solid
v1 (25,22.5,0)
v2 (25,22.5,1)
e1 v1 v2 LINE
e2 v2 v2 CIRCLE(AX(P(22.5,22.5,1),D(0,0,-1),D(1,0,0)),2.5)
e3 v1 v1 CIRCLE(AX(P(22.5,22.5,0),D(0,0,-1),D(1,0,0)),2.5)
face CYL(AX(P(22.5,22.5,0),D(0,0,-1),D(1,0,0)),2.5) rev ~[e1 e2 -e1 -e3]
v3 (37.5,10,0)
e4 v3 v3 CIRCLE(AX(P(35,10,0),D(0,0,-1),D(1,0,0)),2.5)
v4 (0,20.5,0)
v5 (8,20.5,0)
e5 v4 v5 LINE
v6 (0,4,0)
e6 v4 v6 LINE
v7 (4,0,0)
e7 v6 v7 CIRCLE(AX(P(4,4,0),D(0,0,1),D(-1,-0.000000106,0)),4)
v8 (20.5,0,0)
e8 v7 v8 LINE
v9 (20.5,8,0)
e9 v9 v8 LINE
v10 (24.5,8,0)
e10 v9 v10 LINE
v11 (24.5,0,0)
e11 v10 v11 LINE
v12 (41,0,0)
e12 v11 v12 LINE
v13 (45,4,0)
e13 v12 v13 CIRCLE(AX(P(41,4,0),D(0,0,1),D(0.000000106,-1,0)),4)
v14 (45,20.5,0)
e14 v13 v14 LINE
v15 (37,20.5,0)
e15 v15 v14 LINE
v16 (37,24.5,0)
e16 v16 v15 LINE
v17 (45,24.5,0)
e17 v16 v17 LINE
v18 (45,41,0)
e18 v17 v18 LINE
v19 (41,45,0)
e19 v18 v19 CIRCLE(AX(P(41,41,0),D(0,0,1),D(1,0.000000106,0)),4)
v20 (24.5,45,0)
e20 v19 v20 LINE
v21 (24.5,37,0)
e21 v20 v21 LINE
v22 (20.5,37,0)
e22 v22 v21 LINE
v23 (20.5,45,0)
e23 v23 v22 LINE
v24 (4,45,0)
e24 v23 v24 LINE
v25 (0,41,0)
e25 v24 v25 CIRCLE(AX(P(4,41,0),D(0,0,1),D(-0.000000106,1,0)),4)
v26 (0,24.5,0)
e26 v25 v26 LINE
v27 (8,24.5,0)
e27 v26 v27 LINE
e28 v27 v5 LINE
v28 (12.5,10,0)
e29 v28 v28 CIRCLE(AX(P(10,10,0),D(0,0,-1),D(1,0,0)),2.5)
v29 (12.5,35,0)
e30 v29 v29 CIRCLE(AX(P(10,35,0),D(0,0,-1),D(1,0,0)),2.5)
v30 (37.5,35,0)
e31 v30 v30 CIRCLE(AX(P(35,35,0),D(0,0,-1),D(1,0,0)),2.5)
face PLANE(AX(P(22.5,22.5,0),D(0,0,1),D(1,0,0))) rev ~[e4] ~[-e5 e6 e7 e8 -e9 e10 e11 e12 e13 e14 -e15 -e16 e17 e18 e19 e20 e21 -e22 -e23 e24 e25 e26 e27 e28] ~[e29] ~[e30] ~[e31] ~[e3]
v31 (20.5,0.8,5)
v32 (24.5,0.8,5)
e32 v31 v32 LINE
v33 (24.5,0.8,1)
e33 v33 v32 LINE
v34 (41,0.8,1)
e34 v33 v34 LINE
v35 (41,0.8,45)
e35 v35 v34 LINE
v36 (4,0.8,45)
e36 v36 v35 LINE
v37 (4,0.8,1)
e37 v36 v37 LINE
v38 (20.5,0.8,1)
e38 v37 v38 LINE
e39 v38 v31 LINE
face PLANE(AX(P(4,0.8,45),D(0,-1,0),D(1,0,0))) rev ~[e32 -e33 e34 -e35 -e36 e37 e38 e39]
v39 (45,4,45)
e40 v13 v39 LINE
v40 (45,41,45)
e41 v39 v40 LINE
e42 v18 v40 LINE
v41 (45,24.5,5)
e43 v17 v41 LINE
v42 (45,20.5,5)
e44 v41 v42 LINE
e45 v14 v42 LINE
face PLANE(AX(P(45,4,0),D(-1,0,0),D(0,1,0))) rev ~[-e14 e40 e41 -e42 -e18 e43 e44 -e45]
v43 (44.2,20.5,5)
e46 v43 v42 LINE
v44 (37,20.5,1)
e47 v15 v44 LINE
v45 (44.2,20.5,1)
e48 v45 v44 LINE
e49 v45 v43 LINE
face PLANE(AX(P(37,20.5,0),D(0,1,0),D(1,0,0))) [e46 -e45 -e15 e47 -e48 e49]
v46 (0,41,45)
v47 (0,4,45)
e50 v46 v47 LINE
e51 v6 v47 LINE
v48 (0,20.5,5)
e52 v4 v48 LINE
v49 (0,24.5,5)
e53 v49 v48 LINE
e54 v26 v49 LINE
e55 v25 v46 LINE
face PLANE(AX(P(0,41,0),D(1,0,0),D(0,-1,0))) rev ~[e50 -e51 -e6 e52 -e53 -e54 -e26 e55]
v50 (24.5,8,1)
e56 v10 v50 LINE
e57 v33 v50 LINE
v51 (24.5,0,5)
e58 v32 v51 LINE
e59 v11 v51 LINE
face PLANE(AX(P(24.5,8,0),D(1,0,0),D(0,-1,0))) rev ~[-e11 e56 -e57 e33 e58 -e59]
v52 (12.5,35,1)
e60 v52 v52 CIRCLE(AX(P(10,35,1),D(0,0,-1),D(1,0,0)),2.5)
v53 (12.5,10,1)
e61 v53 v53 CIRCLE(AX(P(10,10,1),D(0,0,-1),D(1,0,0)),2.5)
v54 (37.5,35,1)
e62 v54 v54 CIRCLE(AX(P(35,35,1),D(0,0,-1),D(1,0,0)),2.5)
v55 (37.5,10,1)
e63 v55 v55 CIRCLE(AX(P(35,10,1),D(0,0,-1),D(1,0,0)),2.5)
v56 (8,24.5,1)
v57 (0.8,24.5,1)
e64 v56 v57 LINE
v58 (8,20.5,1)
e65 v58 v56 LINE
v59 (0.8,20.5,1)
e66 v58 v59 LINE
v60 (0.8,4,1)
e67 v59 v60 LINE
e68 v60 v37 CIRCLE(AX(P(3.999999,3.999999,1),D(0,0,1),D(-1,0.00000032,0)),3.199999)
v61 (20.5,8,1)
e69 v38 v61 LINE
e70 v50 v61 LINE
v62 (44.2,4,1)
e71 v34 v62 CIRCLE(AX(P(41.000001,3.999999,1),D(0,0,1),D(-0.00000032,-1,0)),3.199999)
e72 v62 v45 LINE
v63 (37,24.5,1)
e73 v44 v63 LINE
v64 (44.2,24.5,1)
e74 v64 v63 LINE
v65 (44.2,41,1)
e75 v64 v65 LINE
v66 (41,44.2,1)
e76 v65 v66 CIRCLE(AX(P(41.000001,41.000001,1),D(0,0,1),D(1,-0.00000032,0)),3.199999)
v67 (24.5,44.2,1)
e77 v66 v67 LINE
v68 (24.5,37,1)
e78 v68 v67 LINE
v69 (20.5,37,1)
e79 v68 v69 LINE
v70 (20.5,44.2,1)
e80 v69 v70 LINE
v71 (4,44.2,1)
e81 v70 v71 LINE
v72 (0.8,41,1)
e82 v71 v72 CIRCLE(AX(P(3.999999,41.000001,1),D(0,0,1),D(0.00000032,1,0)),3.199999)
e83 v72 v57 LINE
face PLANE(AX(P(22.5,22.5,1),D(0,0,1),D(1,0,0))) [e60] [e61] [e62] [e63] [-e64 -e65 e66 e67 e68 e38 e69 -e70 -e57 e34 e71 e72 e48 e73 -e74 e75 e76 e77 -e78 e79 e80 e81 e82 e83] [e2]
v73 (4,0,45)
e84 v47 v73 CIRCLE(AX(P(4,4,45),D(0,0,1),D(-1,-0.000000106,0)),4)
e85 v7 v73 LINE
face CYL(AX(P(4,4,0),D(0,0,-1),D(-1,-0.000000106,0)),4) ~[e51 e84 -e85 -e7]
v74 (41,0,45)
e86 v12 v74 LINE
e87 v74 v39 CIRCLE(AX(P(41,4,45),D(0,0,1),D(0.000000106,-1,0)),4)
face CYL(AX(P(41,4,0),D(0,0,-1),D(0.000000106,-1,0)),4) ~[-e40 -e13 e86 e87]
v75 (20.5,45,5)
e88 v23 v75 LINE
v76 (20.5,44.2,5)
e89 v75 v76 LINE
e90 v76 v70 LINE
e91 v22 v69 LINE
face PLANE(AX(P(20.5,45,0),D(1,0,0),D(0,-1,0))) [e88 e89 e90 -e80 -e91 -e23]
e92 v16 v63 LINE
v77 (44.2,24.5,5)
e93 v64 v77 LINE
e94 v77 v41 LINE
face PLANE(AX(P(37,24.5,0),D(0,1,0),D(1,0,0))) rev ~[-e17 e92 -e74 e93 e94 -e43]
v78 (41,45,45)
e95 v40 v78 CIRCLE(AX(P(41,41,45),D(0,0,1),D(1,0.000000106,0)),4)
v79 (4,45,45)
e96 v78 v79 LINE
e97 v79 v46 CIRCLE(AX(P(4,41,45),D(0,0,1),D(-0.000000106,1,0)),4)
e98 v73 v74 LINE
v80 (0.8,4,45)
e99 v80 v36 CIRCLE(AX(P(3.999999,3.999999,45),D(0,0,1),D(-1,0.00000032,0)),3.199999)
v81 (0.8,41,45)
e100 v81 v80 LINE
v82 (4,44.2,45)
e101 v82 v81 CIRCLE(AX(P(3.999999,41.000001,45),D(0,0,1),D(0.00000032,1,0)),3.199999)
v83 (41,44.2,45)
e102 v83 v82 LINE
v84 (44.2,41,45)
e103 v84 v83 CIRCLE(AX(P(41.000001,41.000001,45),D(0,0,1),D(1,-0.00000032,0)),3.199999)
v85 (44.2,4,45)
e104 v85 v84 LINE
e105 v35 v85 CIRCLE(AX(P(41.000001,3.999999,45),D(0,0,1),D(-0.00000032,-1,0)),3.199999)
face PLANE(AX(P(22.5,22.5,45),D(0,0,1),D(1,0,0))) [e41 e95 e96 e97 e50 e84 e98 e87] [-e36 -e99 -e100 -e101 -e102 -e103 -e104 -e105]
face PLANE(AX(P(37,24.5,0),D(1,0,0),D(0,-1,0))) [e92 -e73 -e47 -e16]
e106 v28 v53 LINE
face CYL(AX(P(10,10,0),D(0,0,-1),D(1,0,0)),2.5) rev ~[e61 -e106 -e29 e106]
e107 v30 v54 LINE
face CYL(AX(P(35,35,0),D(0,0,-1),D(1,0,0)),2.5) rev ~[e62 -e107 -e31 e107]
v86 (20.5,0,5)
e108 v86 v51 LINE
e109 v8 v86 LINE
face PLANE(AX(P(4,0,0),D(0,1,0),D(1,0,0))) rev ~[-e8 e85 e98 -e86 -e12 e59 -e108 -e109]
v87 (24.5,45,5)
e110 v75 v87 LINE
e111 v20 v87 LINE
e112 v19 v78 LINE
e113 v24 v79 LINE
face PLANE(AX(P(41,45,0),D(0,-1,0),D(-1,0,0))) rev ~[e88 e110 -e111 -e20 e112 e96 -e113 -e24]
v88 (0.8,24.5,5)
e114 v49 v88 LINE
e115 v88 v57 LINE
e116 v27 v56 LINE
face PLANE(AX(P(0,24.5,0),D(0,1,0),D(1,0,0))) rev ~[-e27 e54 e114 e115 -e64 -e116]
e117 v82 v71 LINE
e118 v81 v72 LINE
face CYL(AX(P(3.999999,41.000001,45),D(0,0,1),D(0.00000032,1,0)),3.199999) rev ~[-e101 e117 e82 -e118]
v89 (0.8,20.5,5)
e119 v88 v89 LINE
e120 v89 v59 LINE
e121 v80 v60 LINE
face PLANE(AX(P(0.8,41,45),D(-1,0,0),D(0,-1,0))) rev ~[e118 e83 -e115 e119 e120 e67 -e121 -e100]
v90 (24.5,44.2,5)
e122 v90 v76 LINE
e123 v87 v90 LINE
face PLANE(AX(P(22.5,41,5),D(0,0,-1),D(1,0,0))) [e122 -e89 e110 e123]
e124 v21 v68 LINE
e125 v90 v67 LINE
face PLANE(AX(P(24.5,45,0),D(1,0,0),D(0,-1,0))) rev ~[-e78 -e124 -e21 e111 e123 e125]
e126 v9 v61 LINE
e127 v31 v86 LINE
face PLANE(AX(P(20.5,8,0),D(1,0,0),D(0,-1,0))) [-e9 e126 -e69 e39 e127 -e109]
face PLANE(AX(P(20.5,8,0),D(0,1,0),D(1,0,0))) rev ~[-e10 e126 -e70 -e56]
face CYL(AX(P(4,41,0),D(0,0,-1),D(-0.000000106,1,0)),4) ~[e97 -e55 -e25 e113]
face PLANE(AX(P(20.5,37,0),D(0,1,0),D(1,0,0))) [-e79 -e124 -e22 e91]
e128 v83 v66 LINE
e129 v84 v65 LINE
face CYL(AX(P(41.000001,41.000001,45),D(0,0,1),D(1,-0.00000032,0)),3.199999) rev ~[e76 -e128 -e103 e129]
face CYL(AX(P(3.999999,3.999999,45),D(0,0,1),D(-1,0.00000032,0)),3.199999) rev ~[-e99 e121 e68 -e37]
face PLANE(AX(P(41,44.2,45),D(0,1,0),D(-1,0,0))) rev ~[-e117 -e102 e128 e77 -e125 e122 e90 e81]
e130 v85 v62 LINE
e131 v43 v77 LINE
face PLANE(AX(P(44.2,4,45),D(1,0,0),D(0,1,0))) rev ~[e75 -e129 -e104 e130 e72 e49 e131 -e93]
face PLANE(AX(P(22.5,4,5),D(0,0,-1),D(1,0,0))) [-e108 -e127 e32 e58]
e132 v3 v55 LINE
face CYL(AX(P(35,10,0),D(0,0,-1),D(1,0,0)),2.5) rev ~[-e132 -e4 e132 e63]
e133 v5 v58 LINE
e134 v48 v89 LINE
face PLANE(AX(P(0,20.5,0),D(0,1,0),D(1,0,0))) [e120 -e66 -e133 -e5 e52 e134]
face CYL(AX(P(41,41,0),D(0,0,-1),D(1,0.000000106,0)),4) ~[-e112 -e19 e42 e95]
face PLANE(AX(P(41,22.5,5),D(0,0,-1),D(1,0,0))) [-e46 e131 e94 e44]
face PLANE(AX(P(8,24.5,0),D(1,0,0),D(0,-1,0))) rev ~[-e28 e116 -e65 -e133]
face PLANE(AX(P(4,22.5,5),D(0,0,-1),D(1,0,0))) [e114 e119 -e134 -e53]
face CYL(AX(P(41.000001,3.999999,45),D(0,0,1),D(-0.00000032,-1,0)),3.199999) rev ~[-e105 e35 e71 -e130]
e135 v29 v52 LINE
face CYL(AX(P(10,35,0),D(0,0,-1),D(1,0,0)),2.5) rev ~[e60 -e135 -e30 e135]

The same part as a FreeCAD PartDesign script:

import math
import FreeCAD as App
import Part
import Sketcher
from FreeCAD import Vector

doc = App.newDocument("Part")
params = doc.addObject("Spreadsheet::Sheet", "Params")
for row, (alias, value) in enumerate([
    ("sketch1_radius", "4 mm"),
    ("sketch1_width", "37 mm"),
    ("pad1_length", "45 mm"),
    ("sketch2_radius", "3.199999 mm"),
    ("sketch2_width", "37 mm"),
    ("pocket1_length", "44 mm"),
    ("sketch3_diameter", "5 mm"),
    ("sketch3_width", "4 mm"),
    ("sketch3_width2", "8 mm"),
    ("pocket2_length", "5 mm"),
], start=1):
    params.set(f"A{row}", alias)
    params.set(f"B{row}", "=" + value)
    params.setAlias(f"B{row}", alias)

body = doc.addObject("PartDesign::Body", "Body")

# Sketch on XY plane
sketch1 = doc.addObject("Sketcher::SketchObject", "Sketch")
body.addObject(sketch1)
sketch1.AttachmentSupport = (doc.XY_Plane, [""])
sketch1.MapMode = "FlatFace"
sketch1.addGeometry([
    Part.LineSegment(Vector(4, 0, 0), Vector(41, 0, 0)),  # 0
    Part.ArcOfCircle(Part.Circle(Vector(41, 4, 0), Vector(0, 0, 1), 4), math.radians(-90), math.radians(0)),  # 1
    Part.LineSegment(Vector(45, 4, 0), Vector(45, 41, 0)),  # 2
    Part.ArcOfCircle(Part.Circle(Vector(41, 41, 0), Vector(0, 0, 1), 4), math.radians(0), math.radians(90)),  # 3
    Part.LineSegment(Vector(41, 45, 0), Vector(4, 45, 0)),  # 4
    Part.ArcOfCircle(Part.Circle(Vector(4, 41, 0), Vector(0, 0, 1), 4), math.radians(90), math.radians(180)),  # 5
    Part.LineSegment(Vector(0, 41, 0), Vector(0, 4, 0)),  # 6
    Part.ArcOfCircle(Part.Circle(Vector(4, 4, 0), Vector(0, 0, 1), 4), math.radians(-180), math.radians(-90)),  # 7
], False)
sketch1.addConstraint([
    Sketcher.Constraint("Tangent", 0, 2, 1, 1),
    Sketcher.Constraint("Tangent", 1, 2, 2, 1),
    Sketcher.Constraint("Tangent", 2, 2, 3, 1),
    Sketcher.Constraint("Tangent", 3, 2, 4, 1),
    Sketcher.Constraint("Tangent", 4, 2, 5, 1),
    Sketcher.Constraint("Tangent", 5, 2, 6, 1),
    Sketcher.Constraint("Tangent", 6, 2, 7, 1),
    Sketcher.Constraint("Tangent", 7, 2, 0, 1),
    Sketcher.Constraint("Horizontal", 0),
    Sketcher.Constraint("Vertical", 2),
    Sketcher.Constraint("Horizontal", 4),
    Sketcher.Constraint("Vertical", 6),
    Sketcher.Constraint("Equal", 1, 3),
    Sketcher.Constraint("Equal", 3, 5),
    Sketcher.Constraint("Equal", 5, 7),
    Sketcher.Constraint("PointOnObject", 0, 2, -1),
    Sketcher.Constraint("PointOnObject", 5, 2, -2),
    Sketcher.Constraint("Equal", 4, 2),
    Sketcher.Constraint("Radius", 1, 4.0),
    Sketcher.Constraint("DistanceX", 0, 1, 0, 2, 37.0),
])
sketch1.setExpression("Constraints[18]", "Params.sketch1_radius")
sketch1.setExpression("Constraints[19]", "Params.sketch1_width")
pad1 = doc.addObject("PartDesign::Pad", "Pad")
body.addObject(pad1)
pad1.Profile = sketch1
pad1.setExpression("Length", "Params.pad1_length")

# Sketch on XY plane
sketch2 = doc.addObject("Sketcher::SketchObject", "Sketch001")
body.addObject(sketch2)
sketch2.AttachmentSupport = (doc.XY_Plane, [""])
sketch2.MapMode = "FlatFace"
sketch2.AttachmentOffset = App.Placement(Vector(0, 0, 45), App.Rotation())
sketch2.addGeometry([
    Part.LineSegment(Vector(4, 0.8, 0), Vector(41, 0.8, 0)),  # 0
    Part.ArcOfCircle(Part.Circle(Vector(41, 4, 0), Vector(0, 0, 1), 3.2), math.radians(-90), math.radians(0)),  # 1
    Part.LineSegment(Vector(44.2, 4, 0), Vector(44.2, 41, 0)),  # 2
    Part.ArcOfCircle(Part.Circle(Vector(41, 41, 0), Vector(0, 0, 1), 3.2), math.radians(0), math.radians(90)),  # 3
    Part.LineSegment(Vector(41, 44.2, 0), Vector(4, 44.2, 0)),  # 4
    Part.ArcOfCircle(Part.Circle(Vector(4, 41, 0), Vector(0, 0, 1), 3.2), math.radians(90), math.radians(180)),  # 5
    Part.LineSegment(Vector(0.8, 41, 0), Vector(0.8, 4, 0)),  # 6
    Part.ArcOfCircle(Part.Circle(Vector(4, 4, 0), Vector(0, 0, 1), 3.2), math.radians(180), math.radians(270)),  # 7
], False)
sketch2.addConstraint([
    Sketcher.Constraint("Tangent", 0, 2, 1, 1),
    Sketcher.Constraint("Tangent", 1, 2, 2, 1),
    Sketcher.Constraint("Tangent", 2, 2, 3, 1),
    Sketcher.Constraint("Tangent", 3, 2, 4, 1),
    Sketcher.Constraint("Tangent", 4, 2, 5, 1),
    Sketcher.Constraint("Tangent", 5, 2, 6, 1),
    Sketcher.Constraint("Tangent", 6, 2, 7, 1),
    Sketcher.Constraint("Tangent", 7, 2, 0, 1),
    Sketcher.Constraint("Horizontal", 0),
    Sketcher.Constraint("Vertical", 2),
    Sketcher.Constraint("Horizontal", 4),
    Sketcher.Constraint("Vertical", 6),
    Sketcher.Constraint("Equal", 1, 3),
    Sketcher.Constraint("Equal", 3, 5),
    Sketcher.Constraint("Equal", 5, 7),
    Sketcher.Constraint("Equal", 4, 2),
    Sketcher.Constraint("Radius", 1, 3.199999),
    Sketcher.Constraint("DistanceX", 0, 1, 0, 2, 37.0),
    Sketcher.Constraint("DistanceX", -1, 1, 1, 3, 41.000001),
    Sketcher.Constraint("DistanceY", -1, 1, 1, 3, 3.999999),
])
sketch2.setExpression("Constraints[16]", "Params.sketch2_radius")
sketch2.setExpression("Constraints[17]", "Params.sketch2_width")
pocket1 = doc.addObject("PartDesign::Pocket", "Pocket")
body.addObject(pocket1)
pocket1.Profile = sketch2
pocket1.setExpression("Length", "Params.pocket1_length")

# Sketch on XY plane
sketch3 = doc.addObject("Sketcher::SketchObject", "Sketch002")
body.addObject(sketch3)
sketch3.AttachmentSupport = (doc.XY_Plane, [""])
sketch3.MapMode = "FlatFace"
sketch3.addGeometry([
    Part.Circle(Vector(10, 10, 0), Vector(0, 0, 1), 2.5),  # 0
    Part.Circle(Vector(22.5, 22.5, 0), Vector(0, 0, 1), 2.5),  # 1
    Part.Circle(Vector(35, 10, 0), Vector(0, 0, 1), 2.5),  # 2
    Part.Circle(Vector(35, 35, 0), Vector(0, 0, 1), 2.5),  # 3
    Part.Circle(Vector(10, 35, 0), Vector(0, 0, 1), 2.5),  # 4
    Part.LineSegment(Vector(20.5, 0, 0), Vector(20.5, 8, 0)),  # 5
    Part.LineSegment(Vector(20.5, 8, 0), Vector(24.5, 8, 0)),  # 6
    Part.LineSegment(Vector(24.5, 8, 0), Vector(24.5, 0, 0)),  # 7
    Part.LineSegment(Vector(24.5, 0, 0), Vector(20.5, 0, 0)),  # 8
    Part.LineSegment(Vector(0, 20.5, 0), Vector(0, 24.5, 0)),  # 9
    Part.LineSegment(Vector(0, 24.5, 0), Vector(8, 24.5, 0)),  # 10
    Part.LineSegment(Vector(8, 24.5, 0), Vector(8, 20.5, 0)),  # 11
    Part.LineSegment(Vector(8, 20.5, 0), Vector(0, 20.5, 0)),  # 12
    Part.LineSegment(Vector(37, 20.5, 0), Vector(37, 24.5, 0)),  # 13
    Part.LineSegment(Vector(37, 24.5, 0), Vector(45, 24.5, 0)),  # 14
    Part.LineSegment(Vector(45, 24.5, 0), Vector(45, 20.5, 0)),  # 15
    Part.LineSegment(Vector(45, 20.5, 0), Vector(37, 20.5, 0)),  # 16
    Part.LineSegment(Vector(20.5, 37, 0), Vector(20.5, 45, 0)),  # 17
    Part.LineSegment(Vector(20.5, 45, 0), Vector(24.5, 45, 0)),  # 18
    Part.LineSegment(Vector(24.5, 45, 0), Vector(24.5, 37, 0)),  # 19
    Part.LineSegment(Vector(24.5, 37, 0), Vector(20.5, 37, 0)),  # 20
], False)
sketch3.addConstraint([
    Sketcher.Constraint("Coincident", 5, 2, 6, 1),
    Sketcher.Constraint("Coincident", 6, 2, 7, 1),
    Sketcher.Constraint("Coincident", 7, 2, 8, 1),
    Sketcher.Constraint("Coincident", 8, 2, 5, 1),
    Sketcher.Constraint("Coincident", 9, 2, 10, 1),
    Sketcher.Constraint("Coincident", 10, 2, 11, 1),
    Sketcher.Constraint("Coincident", 11, 2, 12, 1),
    Sketcher.Constraint("Coincident", 12, 2, 9, 1),
    Sketcher.Constraint("Coincident", 13, 2, 14, 1),
    Sketcher.Constraint("Coincident", 14, 2, 15, 1),
    Sketcher.Constraint("Coincident", 15, 2, 16, 1),
    Sketcher.Constraint("Coincident", 16, 2, 13, 1),
    Sketcher.Constraint("Coincident", 17, 2, 18, 1),
    Sketcher.Constraint("Coincident", 18, 2, 19, 1),
    Sketcher.Constraint("Coincident", 19, 2, 20, 1),
    Sketcher.Constraint("Coincident", 20, 2, 17, 1),
    Sketcher.Constraint("Vertical", 5),
    Sketcher.Constraint("Horizontal", 6),
    Sketcher.Constraint("Vertical", 7),
    Sketcher.Constraint("Horizontal", 8),
    Sketcher.Constraint("Vertical", 9),
    Sketcher.Constraint("Horizontal", 10),
    Sketcher.Constraint("Vertical", 11),
    Sketcher.Constraint("Horizontal", 12),
    Sketcher.Constraint("Vertical", 13),
    Sketcher.Constraint("Horizontal", 14),
    Sketcher.Constraint("Vertical", 15),
    Sketcher.Constraint("Horizontal", 16),
    Sketcher.Constraint("Vertical", 17),
    Sketcher.Constraint("Horizontal", 18),
    Sketcher.Constraint("Vertical", 19),
    Sketcher.Constraint("Horizontal", 20),
    Sketcher.Constraint("Equal", 0, 1),
    Sketcher.Constraint("Equal", 1, 2),
    Sketcher.Constraint("Equal", 2, 3),
    Sketcher.Constraint("Equal", 3, 4),
    Sketcher.Constraint("PointOnObject", 7, 2, -1),
    Sketcher.Constraint("PointOnObject", 9, 2, -2),
    Sketcher.Constraint("Horizontal", 0, 3, 2, 3),
    Sketcher.Constraint("Horizontal", 3, 3, 4, 3),
    Sketcher.Constraint("Horizontal", 10, 2, 13, 2),
    Sketcher.Constraint("Horizontal", 12, 2, 15, 2),
    Sketcher.Constraint("Vertical", 2, 3, 3, 3),
    Sketcher.Constraint("Vertical", 0, 3, 4, 3),
    Sketcher.Constraint("Vertical", 8, 2, 17, 2),
    Sketcher.Constraint("Vertical", 7, 2, 18, 2),
    Sketcher.Constraint("Equal", 12, 14),
    Sketcher.Constraint("Equal", 16, 5),
    Sketcher.Constraint("Equal", 20, 9),
    Sketcher.Constraint("Equal", 7, 17),
    Sketcher.Constraint("Diameter", 0, 5.0),
    Sketcher.Constraint("DistanceX", 6, 1, 6, 2, 4.0),
    Sketcher.Constraint("DistanceX", 10, 1, 10, 2, 8.0),
    Sketcher.Constraint("DistanceX", -1, 1, 0, 3, 10.0),
    Sketcher.Constraint("DistanceY", -1, 1, 0, 3, 10.0),
    Sketcher.Constraint("DistanceX", -1, 1, 2, 3, 35.0),
    Sketcher.Constraint("DistanceY", -1, 1, 3, 3, 35.0),
    Sketcher.Constraint("DistanceX", -1, 1, 13, 2, 37.0),
    Sketcher.Constraint("DistanceY", -1, 1, 17, 2, 45.0),
    Sketcher.Constraint("DistanceX", 5, 2, 1, 3, 2.0),
    Sketcher.Constraint("DistanceY", 1, 3, 9, 2, 2.0),
    Sketcher.Constraint("DistanceX", -1, 1, 1, 3, 22.5),
    Sketcher.Constraint("DistanceY", -1, 1, 1, 3, 22.5),
])
sketch3.setExpression("Constraints[50]", "Params.sketch3_diameter")
sketch3.setExpression("Constraints[51]", "Params.sketch3_width")
sketch3.setExpression("Constraints[52]", "Params.sketch3_width2")
pocket2 = doc.addObject("PartDesign::Pocket", "Pocket001")
body.addObject(pocket2)
pocket2.Profile = sketch3
pocket2.setExpression("Length", "Params.pocket2_length")
pocket2.Reversed = True

doc.recompute()
